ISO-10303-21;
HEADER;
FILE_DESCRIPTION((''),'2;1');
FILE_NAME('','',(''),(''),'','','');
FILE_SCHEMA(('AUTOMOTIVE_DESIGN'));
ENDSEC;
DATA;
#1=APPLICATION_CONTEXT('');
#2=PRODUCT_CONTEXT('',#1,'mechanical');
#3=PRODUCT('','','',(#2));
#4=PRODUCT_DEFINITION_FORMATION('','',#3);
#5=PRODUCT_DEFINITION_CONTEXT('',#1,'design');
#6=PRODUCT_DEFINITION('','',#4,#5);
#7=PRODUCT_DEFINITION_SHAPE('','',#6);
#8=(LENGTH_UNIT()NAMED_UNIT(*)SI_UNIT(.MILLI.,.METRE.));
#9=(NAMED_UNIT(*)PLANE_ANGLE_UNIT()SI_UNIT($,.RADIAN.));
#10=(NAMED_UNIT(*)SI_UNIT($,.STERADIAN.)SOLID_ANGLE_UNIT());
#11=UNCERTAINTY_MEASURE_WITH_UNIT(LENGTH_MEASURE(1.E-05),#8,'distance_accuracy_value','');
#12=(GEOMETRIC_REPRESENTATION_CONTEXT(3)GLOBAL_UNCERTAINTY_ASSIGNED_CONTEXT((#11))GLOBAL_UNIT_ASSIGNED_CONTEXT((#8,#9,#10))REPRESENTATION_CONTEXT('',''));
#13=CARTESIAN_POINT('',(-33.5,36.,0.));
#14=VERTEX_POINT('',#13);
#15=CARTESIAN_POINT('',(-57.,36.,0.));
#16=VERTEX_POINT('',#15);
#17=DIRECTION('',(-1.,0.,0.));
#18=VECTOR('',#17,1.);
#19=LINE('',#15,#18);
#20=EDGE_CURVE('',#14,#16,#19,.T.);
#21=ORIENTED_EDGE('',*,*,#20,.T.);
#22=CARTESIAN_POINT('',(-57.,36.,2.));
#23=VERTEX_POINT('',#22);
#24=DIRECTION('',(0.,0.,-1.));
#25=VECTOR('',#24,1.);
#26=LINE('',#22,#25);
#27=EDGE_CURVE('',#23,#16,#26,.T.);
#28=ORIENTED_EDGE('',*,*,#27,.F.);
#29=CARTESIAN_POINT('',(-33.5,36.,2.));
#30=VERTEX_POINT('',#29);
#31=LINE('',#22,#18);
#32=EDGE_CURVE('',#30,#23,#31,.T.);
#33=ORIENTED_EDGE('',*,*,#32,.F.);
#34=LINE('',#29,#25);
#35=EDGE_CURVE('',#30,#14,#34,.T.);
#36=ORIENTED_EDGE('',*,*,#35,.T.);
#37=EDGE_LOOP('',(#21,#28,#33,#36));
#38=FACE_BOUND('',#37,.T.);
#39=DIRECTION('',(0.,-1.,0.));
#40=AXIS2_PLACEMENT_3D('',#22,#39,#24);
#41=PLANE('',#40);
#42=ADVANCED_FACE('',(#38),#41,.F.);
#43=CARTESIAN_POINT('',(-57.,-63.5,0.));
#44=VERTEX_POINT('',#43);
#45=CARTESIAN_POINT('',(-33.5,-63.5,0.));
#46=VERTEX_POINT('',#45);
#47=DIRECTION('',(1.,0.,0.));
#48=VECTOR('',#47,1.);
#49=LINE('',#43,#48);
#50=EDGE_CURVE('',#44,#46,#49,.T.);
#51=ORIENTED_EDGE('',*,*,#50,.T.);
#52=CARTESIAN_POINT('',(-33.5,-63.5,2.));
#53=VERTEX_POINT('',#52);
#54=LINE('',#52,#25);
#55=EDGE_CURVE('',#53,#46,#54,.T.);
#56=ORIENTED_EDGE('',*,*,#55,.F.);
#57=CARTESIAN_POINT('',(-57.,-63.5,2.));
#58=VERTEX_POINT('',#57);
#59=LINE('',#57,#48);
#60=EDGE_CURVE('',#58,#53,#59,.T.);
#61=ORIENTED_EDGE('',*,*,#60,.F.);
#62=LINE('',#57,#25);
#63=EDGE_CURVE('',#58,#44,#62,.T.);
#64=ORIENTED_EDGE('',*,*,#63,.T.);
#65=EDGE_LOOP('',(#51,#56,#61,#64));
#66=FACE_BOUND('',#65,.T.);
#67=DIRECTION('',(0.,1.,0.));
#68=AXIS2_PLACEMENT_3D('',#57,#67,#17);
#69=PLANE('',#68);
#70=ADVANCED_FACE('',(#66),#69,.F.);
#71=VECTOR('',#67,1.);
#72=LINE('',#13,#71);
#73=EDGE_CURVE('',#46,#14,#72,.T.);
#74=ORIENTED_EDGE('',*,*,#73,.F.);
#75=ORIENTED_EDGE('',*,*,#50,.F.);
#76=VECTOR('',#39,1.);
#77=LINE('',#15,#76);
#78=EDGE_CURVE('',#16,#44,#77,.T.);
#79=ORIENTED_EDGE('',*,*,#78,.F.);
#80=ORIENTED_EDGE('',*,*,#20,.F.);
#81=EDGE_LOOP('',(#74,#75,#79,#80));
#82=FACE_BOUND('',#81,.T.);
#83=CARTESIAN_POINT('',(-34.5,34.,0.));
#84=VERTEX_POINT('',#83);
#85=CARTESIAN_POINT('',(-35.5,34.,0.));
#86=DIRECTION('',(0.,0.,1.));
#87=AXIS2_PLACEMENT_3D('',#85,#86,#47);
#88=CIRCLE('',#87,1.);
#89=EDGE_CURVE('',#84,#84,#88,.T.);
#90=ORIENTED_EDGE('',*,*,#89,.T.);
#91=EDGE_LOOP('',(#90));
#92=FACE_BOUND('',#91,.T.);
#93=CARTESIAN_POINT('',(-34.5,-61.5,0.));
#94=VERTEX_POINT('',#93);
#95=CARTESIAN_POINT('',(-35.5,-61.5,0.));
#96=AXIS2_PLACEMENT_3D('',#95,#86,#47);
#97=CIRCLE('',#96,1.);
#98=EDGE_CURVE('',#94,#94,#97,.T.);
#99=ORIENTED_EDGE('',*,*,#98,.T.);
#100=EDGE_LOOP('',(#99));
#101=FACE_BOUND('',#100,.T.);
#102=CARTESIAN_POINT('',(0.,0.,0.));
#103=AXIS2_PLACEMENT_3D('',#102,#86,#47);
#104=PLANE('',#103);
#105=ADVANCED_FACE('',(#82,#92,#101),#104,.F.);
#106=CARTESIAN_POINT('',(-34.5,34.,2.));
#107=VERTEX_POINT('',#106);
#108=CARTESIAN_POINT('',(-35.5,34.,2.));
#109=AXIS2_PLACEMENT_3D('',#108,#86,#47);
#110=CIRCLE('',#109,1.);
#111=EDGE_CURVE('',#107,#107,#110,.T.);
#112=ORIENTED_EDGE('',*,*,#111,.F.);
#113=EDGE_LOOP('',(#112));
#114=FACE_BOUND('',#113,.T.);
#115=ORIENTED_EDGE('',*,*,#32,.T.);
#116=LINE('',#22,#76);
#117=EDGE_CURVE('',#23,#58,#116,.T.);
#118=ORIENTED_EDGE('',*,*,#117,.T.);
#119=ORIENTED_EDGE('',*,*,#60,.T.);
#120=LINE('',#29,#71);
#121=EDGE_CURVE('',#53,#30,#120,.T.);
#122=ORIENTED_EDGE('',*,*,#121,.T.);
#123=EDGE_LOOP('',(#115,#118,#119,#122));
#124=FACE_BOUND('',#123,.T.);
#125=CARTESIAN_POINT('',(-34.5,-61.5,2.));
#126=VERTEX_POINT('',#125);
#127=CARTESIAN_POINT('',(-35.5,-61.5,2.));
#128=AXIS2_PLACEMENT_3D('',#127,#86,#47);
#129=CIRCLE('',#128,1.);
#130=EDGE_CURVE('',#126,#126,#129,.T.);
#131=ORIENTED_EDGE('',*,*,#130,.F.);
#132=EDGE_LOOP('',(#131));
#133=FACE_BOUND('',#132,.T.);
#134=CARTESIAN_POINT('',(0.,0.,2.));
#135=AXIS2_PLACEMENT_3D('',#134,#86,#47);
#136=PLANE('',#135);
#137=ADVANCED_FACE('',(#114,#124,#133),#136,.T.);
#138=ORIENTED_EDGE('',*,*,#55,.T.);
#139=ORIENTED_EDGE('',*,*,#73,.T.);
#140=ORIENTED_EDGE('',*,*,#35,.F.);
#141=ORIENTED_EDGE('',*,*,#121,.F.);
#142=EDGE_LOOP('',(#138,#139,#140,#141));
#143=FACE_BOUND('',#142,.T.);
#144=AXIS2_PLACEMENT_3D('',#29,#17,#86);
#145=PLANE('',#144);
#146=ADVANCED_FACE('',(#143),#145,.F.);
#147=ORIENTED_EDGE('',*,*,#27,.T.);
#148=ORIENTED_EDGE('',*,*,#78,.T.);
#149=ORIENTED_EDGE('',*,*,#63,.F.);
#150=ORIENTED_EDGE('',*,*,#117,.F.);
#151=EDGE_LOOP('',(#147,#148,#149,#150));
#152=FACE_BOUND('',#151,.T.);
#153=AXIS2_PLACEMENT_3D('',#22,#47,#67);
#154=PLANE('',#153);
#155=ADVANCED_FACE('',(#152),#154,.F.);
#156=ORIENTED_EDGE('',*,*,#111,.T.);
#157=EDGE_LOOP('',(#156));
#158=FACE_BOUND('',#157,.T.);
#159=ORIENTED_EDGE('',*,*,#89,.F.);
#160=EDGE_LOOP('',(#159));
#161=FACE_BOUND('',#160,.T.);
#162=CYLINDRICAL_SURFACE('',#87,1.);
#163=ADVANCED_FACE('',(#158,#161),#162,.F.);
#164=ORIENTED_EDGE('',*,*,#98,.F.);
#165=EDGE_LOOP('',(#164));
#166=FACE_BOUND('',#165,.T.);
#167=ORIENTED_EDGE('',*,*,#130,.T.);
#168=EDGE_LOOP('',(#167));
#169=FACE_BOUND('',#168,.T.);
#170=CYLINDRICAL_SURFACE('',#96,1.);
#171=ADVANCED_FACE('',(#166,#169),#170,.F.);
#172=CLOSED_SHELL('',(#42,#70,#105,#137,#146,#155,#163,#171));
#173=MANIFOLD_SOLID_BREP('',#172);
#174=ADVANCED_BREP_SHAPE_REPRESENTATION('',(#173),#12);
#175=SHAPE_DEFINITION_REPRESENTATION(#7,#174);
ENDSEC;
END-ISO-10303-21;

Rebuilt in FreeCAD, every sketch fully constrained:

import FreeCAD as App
import Part
import Sketcher
from FreeCAD import Vector
Q = App.Units.Quantity


def add_polygon(sketch, points):
    """Adds a closed chain of lines whose ends are joined by coincident constraints."""
    first, n = sketch.GeometryCount, len(points)
    for a, b in zip(points, points[1:] + points[:1]):
        sketch.addGeometry(Part.LineSegment(App.Vector(*a, 0), App.Vector(*b, 0)), False)
    for i in range(n):
        sketch.addConstraint(Sketcher.Constraint("Coincident", first + i, 2, first + (i + 1) % n, 1))

doc = App.newDocument("Part")
params = doc.addObject("Spreadsheet::Sheet", "Params")
for row, (alias, value) in enumerate([
    ("sketch1_width", "23.5 mm"),
    ("sketch1_height", "99.5 mm"),
    ("pad1_length", "2 mm"),
    ("sketch2_diameter", "2 mm"),
], start=1):
    params.set(f"A{row}", alias)
    params.set(f"B{row}", "=" + value)
    params.setAlias(f"B{row}", alias)

body = doc.addObject("PartDesign::Body", "Body")

# Sketch on XY plane
sketch1 = doc.addObject("Sketcher::SketchObject", "Sketch")
body.addObject(sketch1)
sketch1.AttachmentSupport = (doc.XY_Plane, [""])
sketch1.MapMode = "FlatFace"
add_polygon(sketch1, [(-57, 36), (-57, -63.5), (-33.5, -63.5), (-33.5, 36)])  # lines 0-3
sketch1.addConstraint(Sketcher.Constraint("Vertical", 0))
sketch1.addConstraint(Sketcher.Constraint("Horizontal", 1))
sketch1.addConstraint(Sketcher.Constraint("Vertical", 2))
sketch1.addConstraint(Sketcher.Constraint("Horizontal", 3))
sketch1.addConstraint(Sketcher.Constraint("DistanceX", 1, 1, 1, 2, Q("23.5 mm")))
sketch1.addConstraint(Sketcher.Constraint("DistanceY", 0, 2, 0, 1, Q("99.5 mm")))
sketch1.addConstraint(Sketcher.Constraint("DistanceX", 0, 2, -1, 1, Q("57 mm")))
sketch1.addConstraint(Sketcher.Constraint("DistanceY", -1, 1, 2, 2, Q("36 mm")))
sketch1.setExpression("Constraints[8]", "Params.sketch1_width")
sketch1.setExpression("Constraints[9]", "Params.sketch1_height")
pad1 = doc.addObject("PartDesign::Pad", "Pad")
body.addObject(pad1)
pad1.Profile = sketch1
pad1.setExpression("Length", "Params.pad1_length")

# Sketch on XY plane
sketch2 = doc.addObject("Sketcher::SketchObject", "Sketch001")
body.addObject(sketch2)
sketch2.AttachmentSupport = (doc.XY_Plane, [""])
sketch2.MapMode = "FlatFace"
sketch2.AttachmentOffset = App.Placement(Vector(0, 0, 2), App.Rotation())
sketch2.addGeometry(Part.Circle(Vector(-35.5, 34, 0), Vector(0, 0, 1), 1), False)
sketch2.addGeometry(Part.Circle(Vector(-35.5, -61.5, 0), Vector(0, 0, 1), 1), False)
sketch2.addConstraint(Sketcher.Constraint("Equal", 0, 1))
sketch2.addConstraint(Sketcher.Constraint("Vertical", 0, 3, 1, 3))
sketch2.addConstraint(Sketcher.Constraint("Diameter", 0, Q("2 mm")))
sketch2.addConstraint(Sketcher.Constraint("DistanceY", -1, 1, 0, 3, Q("34 mm")))
sketch2.addConstraint(Sketcher.Constraint("DistanceX", 0, 3, -1, 1, Q("35.5 mm")))
sketch2.addConstraint(Sketcher.Constraint("DistanceY", 1, 3, -1, 1, Q("61.5 mm")))
sketch2.setExpression("Constraints[2]", "Params.sketch2_diameter")
pocket1 = doc.addObject("PartDesign::Pocket", "Pocket")
body.addObject(pocket1)
pocket1.Profile = sketch2
pocket1.Type = "ThroughAll"

doc.recompute()
